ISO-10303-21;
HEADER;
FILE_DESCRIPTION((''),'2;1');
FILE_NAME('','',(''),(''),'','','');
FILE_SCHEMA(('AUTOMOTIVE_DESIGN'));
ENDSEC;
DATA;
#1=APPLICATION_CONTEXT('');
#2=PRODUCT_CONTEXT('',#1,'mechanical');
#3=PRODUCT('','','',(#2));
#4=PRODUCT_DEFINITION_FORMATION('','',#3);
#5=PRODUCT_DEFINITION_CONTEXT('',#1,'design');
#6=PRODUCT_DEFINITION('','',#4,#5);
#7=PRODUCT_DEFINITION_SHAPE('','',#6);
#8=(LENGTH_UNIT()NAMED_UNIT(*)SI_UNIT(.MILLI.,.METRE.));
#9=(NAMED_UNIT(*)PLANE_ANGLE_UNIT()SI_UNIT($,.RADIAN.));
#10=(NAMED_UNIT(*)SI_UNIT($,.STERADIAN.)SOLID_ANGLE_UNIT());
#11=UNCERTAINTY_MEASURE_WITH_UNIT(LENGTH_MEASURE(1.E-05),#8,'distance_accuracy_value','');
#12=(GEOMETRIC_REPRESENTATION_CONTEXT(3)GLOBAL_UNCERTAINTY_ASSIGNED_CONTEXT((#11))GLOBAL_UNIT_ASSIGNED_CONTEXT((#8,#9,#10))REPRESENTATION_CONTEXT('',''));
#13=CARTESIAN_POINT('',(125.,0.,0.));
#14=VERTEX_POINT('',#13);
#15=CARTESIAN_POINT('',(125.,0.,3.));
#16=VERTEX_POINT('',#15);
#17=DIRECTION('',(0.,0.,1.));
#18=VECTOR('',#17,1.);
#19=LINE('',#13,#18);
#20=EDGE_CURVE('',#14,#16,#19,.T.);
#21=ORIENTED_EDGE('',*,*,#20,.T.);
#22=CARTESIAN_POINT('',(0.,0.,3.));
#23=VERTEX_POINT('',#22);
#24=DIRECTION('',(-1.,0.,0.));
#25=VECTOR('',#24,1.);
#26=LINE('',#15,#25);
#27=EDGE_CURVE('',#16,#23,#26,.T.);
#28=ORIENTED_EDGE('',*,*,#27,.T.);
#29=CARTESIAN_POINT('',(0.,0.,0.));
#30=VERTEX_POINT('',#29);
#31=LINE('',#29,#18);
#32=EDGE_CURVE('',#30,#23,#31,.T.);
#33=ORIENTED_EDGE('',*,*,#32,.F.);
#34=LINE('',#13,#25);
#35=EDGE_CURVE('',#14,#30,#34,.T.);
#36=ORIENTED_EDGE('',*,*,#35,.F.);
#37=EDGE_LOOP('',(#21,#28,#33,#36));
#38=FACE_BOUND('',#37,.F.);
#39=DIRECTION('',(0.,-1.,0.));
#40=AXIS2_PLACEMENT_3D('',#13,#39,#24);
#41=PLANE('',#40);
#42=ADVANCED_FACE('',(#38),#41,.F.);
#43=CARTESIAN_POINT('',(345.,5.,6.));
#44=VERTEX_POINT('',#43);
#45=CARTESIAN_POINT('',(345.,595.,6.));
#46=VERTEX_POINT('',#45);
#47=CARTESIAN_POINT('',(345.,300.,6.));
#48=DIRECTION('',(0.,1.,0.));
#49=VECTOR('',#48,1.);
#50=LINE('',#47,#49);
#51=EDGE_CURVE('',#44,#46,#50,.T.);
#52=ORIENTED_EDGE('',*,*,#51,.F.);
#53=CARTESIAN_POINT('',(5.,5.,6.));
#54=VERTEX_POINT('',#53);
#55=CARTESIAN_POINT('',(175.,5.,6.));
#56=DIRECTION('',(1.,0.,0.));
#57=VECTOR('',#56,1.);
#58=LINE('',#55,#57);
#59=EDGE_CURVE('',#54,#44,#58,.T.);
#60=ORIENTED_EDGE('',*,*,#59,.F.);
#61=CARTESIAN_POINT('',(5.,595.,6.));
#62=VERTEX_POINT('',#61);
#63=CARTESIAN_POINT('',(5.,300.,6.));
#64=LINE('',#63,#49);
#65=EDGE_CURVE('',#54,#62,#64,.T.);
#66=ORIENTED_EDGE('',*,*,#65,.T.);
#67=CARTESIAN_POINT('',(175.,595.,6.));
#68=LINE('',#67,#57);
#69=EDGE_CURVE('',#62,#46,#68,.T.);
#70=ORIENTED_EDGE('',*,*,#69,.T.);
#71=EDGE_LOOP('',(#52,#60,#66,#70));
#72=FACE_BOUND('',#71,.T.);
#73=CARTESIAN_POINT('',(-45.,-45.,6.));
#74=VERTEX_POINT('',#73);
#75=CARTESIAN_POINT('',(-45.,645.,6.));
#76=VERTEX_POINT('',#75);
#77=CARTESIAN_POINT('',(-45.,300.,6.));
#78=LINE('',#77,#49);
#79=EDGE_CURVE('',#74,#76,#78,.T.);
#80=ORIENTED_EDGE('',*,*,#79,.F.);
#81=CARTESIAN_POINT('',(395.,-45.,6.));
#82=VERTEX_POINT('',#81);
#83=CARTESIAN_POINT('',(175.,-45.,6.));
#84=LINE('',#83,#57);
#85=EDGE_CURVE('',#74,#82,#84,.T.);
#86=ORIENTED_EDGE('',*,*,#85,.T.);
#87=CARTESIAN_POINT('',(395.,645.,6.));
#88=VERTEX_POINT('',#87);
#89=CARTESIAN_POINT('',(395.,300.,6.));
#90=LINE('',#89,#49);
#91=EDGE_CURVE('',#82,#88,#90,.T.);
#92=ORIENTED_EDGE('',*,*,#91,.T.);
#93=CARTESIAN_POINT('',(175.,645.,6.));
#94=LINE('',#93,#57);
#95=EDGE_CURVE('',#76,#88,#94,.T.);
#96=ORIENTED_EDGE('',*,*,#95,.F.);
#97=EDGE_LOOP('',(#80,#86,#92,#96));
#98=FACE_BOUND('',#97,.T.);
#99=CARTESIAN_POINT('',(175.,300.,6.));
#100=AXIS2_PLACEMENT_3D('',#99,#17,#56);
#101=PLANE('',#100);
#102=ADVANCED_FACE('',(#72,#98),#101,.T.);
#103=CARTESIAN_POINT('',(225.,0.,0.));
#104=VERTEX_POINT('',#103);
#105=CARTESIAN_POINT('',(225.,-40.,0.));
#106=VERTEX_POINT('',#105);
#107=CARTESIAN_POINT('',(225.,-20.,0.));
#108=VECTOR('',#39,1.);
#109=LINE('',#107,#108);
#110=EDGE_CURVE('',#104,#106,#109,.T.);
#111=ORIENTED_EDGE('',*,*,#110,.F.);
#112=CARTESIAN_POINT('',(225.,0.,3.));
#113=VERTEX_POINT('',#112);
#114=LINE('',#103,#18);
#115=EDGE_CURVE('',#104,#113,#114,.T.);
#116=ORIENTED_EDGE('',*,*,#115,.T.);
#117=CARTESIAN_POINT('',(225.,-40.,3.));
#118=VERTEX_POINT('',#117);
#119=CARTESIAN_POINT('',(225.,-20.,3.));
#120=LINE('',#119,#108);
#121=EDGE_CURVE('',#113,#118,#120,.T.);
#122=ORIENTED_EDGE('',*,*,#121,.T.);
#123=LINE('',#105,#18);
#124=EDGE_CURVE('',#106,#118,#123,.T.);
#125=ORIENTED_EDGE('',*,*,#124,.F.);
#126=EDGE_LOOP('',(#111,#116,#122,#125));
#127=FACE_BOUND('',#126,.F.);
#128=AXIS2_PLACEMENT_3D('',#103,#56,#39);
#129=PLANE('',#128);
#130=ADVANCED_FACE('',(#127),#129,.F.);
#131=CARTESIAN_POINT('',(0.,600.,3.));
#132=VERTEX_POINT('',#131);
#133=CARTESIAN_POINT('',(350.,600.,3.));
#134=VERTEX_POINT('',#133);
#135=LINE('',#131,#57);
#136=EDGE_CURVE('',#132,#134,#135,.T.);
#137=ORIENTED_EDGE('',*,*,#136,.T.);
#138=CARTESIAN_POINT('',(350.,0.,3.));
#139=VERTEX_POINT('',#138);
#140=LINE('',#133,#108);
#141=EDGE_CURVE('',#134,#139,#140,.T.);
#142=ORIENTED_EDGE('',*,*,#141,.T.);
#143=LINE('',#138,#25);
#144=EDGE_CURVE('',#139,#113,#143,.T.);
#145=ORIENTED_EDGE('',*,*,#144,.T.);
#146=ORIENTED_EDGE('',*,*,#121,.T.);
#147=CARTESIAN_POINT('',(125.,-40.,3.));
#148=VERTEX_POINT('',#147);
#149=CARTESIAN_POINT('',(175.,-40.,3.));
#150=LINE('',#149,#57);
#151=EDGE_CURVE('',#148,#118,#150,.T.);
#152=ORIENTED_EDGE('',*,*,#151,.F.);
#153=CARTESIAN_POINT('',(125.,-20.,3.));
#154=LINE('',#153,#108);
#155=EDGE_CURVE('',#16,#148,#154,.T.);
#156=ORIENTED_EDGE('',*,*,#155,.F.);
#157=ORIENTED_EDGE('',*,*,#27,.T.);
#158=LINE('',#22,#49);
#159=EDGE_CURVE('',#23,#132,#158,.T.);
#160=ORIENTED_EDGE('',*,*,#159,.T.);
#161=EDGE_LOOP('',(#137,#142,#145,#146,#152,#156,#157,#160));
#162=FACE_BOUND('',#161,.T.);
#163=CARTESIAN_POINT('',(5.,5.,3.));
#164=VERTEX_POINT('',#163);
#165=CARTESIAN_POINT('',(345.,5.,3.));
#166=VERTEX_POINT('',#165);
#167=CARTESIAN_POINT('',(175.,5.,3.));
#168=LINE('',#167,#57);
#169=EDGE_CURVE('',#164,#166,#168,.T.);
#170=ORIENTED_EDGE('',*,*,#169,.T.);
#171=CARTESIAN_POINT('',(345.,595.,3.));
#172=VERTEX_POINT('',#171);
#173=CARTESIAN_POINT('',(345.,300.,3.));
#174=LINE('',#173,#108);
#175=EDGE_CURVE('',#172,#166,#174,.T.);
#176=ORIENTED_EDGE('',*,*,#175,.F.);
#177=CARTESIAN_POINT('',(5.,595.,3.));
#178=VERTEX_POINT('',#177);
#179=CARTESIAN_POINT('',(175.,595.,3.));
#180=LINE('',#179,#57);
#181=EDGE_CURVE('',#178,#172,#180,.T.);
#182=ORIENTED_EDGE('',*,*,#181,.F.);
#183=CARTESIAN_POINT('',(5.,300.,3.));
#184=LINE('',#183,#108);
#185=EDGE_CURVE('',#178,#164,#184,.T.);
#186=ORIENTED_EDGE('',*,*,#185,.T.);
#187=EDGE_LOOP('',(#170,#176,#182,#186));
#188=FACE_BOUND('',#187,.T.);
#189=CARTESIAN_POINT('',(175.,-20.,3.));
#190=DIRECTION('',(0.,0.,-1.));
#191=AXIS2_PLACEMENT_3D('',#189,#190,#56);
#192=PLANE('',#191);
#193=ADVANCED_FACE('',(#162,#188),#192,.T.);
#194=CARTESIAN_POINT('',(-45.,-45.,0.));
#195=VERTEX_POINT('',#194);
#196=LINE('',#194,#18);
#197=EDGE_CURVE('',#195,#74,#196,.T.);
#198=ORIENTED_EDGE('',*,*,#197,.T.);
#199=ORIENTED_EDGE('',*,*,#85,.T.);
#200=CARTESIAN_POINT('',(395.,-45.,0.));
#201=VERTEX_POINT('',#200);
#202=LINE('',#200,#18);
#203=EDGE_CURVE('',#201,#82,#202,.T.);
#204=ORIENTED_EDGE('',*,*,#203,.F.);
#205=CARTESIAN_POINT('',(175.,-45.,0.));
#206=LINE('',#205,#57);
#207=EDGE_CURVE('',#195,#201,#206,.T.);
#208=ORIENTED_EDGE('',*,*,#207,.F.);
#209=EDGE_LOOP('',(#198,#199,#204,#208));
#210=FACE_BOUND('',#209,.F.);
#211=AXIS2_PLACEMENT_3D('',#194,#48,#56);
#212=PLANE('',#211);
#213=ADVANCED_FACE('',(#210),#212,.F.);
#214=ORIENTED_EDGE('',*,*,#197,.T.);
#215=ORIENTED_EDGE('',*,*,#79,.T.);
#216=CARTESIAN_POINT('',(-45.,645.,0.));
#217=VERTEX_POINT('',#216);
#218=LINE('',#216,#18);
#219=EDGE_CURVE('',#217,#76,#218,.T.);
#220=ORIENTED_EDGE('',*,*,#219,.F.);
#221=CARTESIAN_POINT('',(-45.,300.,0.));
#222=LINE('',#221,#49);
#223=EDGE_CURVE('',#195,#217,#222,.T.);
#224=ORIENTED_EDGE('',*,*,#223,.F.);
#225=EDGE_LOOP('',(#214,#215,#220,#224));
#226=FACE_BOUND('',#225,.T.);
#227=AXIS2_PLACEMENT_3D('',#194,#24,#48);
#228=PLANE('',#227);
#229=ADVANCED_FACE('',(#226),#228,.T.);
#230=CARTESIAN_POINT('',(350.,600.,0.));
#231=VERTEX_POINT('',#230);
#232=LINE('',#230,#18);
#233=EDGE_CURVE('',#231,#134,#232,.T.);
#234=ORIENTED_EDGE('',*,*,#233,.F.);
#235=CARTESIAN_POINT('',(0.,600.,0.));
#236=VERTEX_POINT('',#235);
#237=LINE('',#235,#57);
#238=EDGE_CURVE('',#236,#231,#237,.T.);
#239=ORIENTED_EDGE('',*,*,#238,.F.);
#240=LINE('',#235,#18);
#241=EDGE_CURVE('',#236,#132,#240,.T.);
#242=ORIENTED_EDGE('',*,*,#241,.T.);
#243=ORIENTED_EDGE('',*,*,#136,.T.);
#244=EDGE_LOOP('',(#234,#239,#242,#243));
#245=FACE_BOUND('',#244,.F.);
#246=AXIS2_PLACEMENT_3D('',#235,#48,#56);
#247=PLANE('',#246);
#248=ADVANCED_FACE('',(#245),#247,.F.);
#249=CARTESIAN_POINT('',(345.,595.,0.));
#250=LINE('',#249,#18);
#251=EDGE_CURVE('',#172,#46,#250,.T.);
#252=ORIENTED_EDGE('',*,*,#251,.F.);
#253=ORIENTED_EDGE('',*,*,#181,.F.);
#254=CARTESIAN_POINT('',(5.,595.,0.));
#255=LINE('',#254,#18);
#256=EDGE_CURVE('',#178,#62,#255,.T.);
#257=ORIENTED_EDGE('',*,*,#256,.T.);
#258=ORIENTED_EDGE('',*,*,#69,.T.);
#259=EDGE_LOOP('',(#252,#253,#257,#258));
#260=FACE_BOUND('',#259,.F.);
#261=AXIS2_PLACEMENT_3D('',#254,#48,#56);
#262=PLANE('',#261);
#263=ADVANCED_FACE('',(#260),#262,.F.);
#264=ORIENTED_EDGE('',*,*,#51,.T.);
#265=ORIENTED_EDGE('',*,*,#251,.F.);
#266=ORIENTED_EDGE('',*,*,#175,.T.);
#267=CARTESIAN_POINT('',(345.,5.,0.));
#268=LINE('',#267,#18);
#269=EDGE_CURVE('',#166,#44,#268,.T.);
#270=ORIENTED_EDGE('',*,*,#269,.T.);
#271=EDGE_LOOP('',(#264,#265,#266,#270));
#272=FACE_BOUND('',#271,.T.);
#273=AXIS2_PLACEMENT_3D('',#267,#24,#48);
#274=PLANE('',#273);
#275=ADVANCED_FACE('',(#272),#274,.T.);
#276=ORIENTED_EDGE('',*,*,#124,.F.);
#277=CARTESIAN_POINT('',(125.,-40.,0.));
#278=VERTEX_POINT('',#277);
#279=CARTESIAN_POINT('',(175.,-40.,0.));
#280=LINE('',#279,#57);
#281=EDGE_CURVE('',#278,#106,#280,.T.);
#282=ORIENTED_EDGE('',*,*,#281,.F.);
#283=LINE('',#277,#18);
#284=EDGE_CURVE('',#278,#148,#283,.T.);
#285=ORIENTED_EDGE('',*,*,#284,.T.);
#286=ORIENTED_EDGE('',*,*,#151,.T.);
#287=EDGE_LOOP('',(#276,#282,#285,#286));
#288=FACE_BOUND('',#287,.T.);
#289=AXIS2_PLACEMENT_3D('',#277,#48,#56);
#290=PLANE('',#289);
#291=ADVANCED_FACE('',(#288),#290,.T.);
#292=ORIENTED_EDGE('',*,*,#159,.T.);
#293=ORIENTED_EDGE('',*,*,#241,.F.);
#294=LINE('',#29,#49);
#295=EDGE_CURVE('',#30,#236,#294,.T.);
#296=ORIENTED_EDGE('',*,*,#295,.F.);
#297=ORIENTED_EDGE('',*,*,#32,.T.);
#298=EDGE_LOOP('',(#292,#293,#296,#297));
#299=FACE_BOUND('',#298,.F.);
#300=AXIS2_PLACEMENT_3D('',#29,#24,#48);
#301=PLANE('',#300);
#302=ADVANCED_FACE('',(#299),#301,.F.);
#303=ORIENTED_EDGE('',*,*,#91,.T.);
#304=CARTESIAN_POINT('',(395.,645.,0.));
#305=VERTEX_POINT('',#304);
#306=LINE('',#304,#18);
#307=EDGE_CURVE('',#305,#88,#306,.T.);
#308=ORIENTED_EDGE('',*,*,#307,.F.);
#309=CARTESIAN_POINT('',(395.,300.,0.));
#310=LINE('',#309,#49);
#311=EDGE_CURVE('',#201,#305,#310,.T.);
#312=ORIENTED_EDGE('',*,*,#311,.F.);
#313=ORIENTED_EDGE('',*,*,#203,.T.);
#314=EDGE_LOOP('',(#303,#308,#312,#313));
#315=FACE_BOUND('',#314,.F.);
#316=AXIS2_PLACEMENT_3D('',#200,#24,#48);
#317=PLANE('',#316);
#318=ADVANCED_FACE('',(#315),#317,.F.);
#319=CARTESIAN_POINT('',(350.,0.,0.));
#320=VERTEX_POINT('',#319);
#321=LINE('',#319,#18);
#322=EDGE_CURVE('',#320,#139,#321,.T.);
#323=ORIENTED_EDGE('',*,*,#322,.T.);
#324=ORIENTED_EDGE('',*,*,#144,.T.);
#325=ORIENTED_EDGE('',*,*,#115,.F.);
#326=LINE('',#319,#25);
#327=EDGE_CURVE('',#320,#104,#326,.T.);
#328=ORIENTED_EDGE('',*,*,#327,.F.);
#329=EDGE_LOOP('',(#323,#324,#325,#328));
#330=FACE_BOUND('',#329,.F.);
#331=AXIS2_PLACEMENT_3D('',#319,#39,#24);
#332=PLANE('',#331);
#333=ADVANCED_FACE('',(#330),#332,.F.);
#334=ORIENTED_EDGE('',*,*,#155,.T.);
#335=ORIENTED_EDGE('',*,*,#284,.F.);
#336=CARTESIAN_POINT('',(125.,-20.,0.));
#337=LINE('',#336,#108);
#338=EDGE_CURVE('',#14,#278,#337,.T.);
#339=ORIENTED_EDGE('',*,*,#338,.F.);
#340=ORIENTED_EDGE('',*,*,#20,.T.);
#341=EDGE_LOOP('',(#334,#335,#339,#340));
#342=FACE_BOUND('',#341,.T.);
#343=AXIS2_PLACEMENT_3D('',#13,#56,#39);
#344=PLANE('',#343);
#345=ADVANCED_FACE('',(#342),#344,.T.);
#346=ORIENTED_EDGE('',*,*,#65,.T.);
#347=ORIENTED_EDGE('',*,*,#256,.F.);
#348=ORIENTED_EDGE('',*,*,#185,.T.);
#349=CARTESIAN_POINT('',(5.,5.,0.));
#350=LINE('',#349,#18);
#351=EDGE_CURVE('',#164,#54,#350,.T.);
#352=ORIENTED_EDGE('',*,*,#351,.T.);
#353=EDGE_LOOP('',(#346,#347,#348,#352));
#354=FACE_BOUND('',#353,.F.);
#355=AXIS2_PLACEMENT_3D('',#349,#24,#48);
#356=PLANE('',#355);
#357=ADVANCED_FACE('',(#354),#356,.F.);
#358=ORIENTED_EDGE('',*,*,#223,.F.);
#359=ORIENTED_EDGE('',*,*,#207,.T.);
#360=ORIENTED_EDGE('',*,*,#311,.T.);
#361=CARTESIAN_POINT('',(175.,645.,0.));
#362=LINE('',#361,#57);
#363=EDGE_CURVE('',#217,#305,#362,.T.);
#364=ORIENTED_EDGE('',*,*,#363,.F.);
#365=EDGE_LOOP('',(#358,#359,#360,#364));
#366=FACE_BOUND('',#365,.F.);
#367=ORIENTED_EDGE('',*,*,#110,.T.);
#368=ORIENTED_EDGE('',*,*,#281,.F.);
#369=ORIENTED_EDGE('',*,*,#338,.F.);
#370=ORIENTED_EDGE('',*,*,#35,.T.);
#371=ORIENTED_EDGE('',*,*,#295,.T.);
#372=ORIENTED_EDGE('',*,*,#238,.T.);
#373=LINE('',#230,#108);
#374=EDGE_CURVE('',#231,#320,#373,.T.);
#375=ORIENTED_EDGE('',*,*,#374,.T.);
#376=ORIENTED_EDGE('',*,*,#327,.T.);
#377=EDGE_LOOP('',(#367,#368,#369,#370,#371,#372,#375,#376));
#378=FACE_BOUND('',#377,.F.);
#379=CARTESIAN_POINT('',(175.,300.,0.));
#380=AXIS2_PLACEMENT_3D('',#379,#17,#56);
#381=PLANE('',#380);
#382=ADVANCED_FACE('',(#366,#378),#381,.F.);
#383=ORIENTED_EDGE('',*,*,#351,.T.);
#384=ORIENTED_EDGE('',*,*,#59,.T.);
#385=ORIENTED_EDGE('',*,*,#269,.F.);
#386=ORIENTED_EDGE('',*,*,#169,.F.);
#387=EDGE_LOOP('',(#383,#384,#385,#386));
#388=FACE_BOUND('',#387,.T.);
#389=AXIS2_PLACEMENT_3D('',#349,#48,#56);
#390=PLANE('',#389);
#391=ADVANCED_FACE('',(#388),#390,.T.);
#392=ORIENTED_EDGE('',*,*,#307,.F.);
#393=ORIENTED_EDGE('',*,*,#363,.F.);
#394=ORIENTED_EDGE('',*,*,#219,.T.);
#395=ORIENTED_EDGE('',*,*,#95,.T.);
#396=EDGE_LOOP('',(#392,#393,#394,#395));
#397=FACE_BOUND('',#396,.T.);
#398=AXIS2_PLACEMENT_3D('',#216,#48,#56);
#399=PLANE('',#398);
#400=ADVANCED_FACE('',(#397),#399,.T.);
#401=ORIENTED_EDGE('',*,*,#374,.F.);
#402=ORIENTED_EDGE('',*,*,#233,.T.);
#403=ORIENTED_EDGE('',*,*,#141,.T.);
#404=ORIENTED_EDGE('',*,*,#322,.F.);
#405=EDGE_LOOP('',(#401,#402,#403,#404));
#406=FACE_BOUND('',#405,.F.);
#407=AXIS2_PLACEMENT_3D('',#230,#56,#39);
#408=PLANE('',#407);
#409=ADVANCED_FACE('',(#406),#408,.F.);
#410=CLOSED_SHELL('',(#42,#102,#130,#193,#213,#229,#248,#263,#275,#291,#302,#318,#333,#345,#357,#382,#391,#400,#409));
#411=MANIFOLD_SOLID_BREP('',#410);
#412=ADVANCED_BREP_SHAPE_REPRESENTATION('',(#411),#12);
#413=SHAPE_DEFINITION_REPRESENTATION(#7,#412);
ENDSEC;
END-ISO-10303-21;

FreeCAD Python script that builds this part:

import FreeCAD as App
import Part
import Sketcher

V = App.Vector
Q = App.Units.Quantity


def add_polygon(sketch, points):
    """Adds a closed chain of lines whose ends are joined by coincident constraints."""
    first, n = sketch.GeometryCount, len(points)
    for a, b in zip(points, points[1:] + points[:1]):
        sketch.addGeometry(Part.LineSegment(App.Vector(*a, 0), App.Vector(*b, 0)), False)
    for i in range(n):
        sketch.addConstraint(Sketcher.Constraint("Coincident", first + i, 2, first + (i + 1) % n, 1))

doc = App.newDocument("Part")
body = doc.addObject("PartDesign::Body", "Body")

# Sketch on XY plane
sketch1 = doc.addObject("Sketcher::SketchObject", "Sketch")
body.addObject(sketch1)
sketch1.AttachmentSupport = (doc.XY_Plane, [""])
sketch1.MapMode = "FlatFace"
add_polygon(sketch1, [(-45, 645), (-45, -45), (395, -45), (395, 645)])  # lines 0-3
add_polygon(sketch1, [(345, 5), (5, 5), (5, 595), (345, 595)])  # lines 4-7
sketch1.addConstraint(Sketcher.Constraint("Vertical", 0))
sketch1.addConstraint(Sketcher.Constraint("Horizontal", 1))
sketch1.addConstraint(Sketcher.Constraint("Vertical", 2))
sketch1.addConstraint(Sketcher.Constraint("Horizontal", 3))
sketch1.addConstraint(Sketcher.Constraint("Horizontal", 4))
sketch1.addConstraint(Sketcher.Constraint("Vertical", 5))
sketch1.addConstraint(Sketcher.Constraint("Horizontal", 6))
sketch1.addConstraint(Sketcher.Constraint("Vertical", 7))
sketch1.addConstraint(Sketcher.Constraint("DistanceX", 1, 1, 1, 2, Q("440 mm")))
sketch1.addConstraint(Sketcher.Constraint("DistanceX", 4, 2, 4, 1, Q("340 mm")))
sketch1.addConstraint(Sketcher.Constraint("DistanceY", 0, 2, 0, 1, Q("690 mm")))
sketch1.addConstraint(Sketcher.Constraint("DistanceY", 5, 1, 5, 2, Q("590 mm")))
sketch1.addConstraint(Sketcher.Constraint("DistanceX", 0, 2, -1, 1, Q("45 mm")))
sketch1.addConstraint(Sketcher.Constraint("DistanceY", 0, 2, -1, 1, Q("45 mm")))
sketch1.addConstraint(Sketcher.Constraint("DistanceX", -1, 1, 4, 2, Q("5 mm")))
sketch1.addConstraint(Sketcher.Constraint("DistanceY", -1, 1, 4, 2, Q("5 mm")))
pad1 = doc.addObject("PartDesign::Pad", "Pad")
body.addObject(pad1)
pad1.Profile = sketch1
pad1.Length = 6

# Sketch on XY plane
sketch2 = doc.addObject("Sketcher::SketchObject", "Sketch001")
body.addObject(sketch2)
sketch2.AttachmentSupport = (doc.XY_Plane, [""])
sketch2.MapMode = "FlatFace"
add_polygon(sketch2, [(125, -40), (125, 0), (0, 0), (0, 600), (350, 600), (350, 0), (225, 0), (225, -40)])  # lines 0-7
add_polygon(sketch2, [(345, 595), (5, 595), (5, 5), (345, 5)])  # lines 8-11
sketch2.addConstraint(Sketcher.Constraint("Vertical", 0))
sketch2.addConstraint(Sketcher.Constraint("Horizontal", 1))
sketch2.addConstraint(Sketcher.Constraint("Vertical", 2))
sketch2.addConstraint(Sketcher.Constraint("Horizontal", 3))
sketch2.addConstraint(Sketcher.Constraint("Vertical", 4))
sketch2.addConstraint(Sketcher.Constraint("Horizontal", 5))
sketch2.addConstraint(Sketcher.Constraint("Vertical", 6))
sketch2.addConstraint(Sketcher.Constraint("Horizontal", 7))
sketch2.addConstraint(Sketcher.Constraint("Horizontal", 8))
sketch2.addConstraint(Sketcher.Constraint("Vertical", 9))
sketch2.addConstraint(Sketcher.Constraint("Horizontal", 10))
sketch2.addConstraint(Sketcher.Constraint("Vertical", 11))
sketch2.addConstraint(Sketcher.Constraint("Coincident", 1, 2, -1, 1))
sketch2.addConstraint(Sketcher.Constraint("PointOnObject", 4, 2, -1))
sketch2.addConstraint(Sketcher.Constraint("Equal", 1, 5))
sketch2.addConstraint(Sketcher.Constraint("DistanceX", 1, 2, 1, 1, Q("125 mm")))
sketch2.addConstraint(Sketcher.Constraint("DistanceX", 3, 1, 3, 2, Q("350 mm")))
sketch2.addConstraint(Sketcher.Constraint("DistanceX", 8, 2, 8, 1, Q("340 mm")))
sketch2.addConstraint(Sketcher.Constraint("DistanceY", 0, 1, 0, 2, Q("40 mm")))
sketch2.addConstraint(Sketcher.Constraint("DistanceY", 2, 1, 2, 2, Q("600 mm")))
sketch2.addConstraint(Sketcher.Constraint("DistanceY", 9, 2, 9, 1, Q("590 mm")))
sketch2.addConstraint(Sketcher.Constraint("DistanceX", -1, 1, 8, 2, Q("5 mm")))
sketch2.addConstraint(Sketcher.Constraint("DistanceY", -1, 1, 8, 2, Q("595 mm")))
pocket1 = doc.addObject("PartDesign::Pocket", "Pocket")
body.addObject(pocket1)
pocket1.Profile = sketch2
pocket1.Length = 3
pocket1.Reversed = True

doc.recompute()
